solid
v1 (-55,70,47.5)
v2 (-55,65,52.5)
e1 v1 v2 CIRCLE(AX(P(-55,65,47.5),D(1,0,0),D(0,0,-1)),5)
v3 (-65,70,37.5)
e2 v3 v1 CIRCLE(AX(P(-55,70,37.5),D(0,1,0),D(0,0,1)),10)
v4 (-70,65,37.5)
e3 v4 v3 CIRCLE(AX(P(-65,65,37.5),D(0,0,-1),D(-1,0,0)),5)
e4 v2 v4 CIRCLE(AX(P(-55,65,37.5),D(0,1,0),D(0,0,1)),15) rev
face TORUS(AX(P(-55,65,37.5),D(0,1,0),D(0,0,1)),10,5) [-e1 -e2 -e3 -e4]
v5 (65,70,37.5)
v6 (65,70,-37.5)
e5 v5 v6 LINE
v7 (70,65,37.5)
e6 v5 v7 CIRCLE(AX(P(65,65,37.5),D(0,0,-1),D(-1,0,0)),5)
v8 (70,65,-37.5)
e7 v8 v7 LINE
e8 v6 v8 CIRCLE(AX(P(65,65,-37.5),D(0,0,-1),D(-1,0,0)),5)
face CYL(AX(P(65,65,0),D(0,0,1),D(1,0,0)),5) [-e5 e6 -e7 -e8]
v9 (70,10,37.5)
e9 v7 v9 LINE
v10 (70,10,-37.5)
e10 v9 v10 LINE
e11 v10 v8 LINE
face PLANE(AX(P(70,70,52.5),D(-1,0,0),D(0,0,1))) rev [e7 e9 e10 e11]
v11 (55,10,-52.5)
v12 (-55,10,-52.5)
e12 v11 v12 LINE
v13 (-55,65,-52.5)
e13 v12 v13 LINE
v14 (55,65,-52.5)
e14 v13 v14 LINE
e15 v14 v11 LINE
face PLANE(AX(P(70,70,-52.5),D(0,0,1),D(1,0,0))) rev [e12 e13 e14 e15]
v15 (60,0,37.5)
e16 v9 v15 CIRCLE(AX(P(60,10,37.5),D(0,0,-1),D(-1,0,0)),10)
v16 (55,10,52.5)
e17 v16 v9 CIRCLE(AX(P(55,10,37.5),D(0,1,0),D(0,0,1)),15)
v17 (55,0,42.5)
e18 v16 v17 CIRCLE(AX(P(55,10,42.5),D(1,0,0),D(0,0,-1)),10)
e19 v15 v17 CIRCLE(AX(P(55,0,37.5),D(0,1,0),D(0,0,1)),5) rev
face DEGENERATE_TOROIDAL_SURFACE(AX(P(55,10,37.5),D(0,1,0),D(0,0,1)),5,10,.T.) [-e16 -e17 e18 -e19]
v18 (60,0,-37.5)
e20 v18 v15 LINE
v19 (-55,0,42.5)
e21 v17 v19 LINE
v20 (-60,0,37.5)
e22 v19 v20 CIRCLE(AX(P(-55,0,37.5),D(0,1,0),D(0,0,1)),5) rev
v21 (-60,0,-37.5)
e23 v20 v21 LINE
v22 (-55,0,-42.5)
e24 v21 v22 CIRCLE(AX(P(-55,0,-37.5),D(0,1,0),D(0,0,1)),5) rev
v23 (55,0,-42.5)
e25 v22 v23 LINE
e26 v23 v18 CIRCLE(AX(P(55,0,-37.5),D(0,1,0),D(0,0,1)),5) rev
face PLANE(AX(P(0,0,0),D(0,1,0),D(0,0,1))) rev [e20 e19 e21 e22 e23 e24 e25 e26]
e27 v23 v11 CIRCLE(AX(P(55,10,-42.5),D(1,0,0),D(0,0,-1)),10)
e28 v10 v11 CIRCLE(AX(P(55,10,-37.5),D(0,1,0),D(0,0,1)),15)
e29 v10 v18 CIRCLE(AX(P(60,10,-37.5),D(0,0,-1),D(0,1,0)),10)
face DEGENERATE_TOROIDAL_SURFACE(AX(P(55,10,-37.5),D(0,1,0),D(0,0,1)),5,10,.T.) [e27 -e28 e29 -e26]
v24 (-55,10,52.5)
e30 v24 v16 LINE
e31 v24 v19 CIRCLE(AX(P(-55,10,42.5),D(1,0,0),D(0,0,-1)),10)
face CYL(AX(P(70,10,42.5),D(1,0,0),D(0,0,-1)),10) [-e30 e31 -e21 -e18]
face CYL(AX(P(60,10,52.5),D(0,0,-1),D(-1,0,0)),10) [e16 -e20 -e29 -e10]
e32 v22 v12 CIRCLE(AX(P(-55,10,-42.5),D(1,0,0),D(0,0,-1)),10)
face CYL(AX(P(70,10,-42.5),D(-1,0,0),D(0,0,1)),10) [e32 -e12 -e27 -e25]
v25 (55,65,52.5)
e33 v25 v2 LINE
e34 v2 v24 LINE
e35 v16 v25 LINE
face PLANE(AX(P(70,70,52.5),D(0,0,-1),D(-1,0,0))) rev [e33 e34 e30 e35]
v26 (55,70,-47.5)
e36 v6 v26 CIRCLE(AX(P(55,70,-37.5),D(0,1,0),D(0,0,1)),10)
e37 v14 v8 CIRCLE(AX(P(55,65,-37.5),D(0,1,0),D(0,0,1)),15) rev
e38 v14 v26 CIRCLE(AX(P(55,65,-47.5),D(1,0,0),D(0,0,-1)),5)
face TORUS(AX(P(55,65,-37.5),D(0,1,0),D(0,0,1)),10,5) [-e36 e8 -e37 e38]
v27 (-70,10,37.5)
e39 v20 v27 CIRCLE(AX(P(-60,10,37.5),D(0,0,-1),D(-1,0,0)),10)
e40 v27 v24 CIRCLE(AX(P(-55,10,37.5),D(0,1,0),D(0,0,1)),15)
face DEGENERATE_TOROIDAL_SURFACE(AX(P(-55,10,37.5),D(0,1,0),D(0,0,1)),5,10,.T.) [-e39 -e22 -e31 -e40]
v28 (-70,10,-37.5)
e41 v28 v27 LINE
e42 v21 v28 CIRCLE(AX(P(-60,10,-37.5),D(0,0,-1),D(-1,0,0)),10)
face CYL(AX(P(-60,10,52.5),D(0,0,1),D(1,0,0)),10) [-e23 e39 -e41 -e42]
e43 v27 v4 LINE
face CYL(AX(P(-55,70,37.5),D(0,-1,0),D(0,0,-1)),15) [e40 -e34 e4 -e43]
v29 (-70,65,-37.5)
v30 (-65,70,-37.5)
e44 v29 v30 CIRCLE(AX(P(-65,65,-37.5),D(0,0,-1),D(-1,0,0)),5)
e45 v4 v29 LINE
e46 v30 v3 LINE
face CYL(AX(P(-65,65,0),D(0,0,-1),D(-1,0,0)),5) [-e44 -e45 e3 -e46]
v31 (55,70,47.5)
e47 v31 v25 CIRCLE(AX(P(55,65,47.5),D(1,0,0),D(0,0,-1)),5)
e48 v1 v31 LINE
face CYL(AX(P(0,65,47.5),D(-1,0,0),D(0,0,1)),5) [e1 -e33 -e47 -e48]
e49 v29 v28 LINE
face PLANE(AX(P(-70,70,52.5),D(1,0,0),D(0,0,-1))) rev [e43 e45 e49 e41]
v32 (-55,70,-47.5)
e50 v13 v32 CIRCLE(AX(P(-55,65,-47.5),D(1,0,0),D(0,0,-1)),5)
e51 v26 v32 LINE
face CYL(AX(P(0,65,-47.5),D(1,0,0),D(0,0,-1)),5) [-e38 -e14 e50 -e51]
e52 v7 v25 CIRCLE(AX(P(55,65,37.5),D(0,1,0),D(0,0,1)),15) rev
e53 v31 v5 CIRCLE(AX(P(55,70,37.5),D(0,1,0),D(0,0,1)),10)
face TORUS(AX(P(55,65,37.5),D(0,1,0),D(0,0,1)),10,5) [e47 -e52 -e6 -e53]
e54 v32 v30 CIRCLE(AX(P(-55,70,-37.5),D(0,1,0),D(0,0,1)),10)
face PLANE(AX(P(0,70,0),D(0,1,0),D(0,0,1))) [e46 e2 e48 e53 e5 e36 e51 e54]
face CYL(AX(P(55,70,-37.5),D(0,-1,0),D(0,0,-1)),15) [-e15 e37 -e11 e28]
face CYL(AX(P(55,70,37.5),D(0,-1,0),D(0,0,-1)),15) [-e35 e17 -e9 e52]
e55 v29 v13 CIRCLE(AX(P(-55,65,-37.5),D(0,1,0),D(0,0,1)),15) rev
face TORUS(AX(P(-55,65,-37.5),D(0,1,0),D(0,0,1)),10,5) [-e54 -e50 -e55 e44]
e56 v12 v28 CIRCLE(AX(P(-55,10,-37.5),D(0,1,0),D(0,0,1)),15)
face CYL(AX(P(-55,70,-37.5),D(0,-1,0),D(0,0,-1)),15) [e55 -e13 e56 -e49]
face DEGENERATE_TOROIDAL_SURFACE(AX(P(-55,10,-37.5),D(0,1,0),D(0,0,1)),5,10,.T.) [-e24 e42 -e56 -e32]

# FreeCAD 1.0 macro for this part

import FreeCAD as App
import Part
import Sketcher

V = App.Vector
Q = App.Units.Quantity


def edges_at(feature, points):
    """Names of the edges that pass closest to the given points."""
    edges = feature.Shape.Edges
    near = lambda p: min(range(len(edges)), key=lambda i: edges[i].distToShape(Part.Vertex(*p))[0])
    return sorted({f"Edge{near(p) + 1}" for p in points})

doc = App.newDocument("Part")
body = doc.addObject("PartDesign::Body", "Body")

# Sketch on XZ plane
sketch1 = body.newObject("Sketcher::SketchObject", "Sketch")
sketch1.AttachmentSupport = (doc.getObject("XZ_Plane"), [""])
sketch1.MapMode = "FlatFace"
sketch1.addGeometry(Part.LineSegment(V(-70, -52, 0), V(-70, 52, 0)), False)
sketch1.addGeometry(Part.LineSegment(V(-70, 52, 0), V(70, 52, 0)), False)
sketch1.addGeometry(Part.LineSegment(V(70, 52, 0), V(70, -52, 0)), False)
sketch1.addGeometry(Part.LineSegment(V(70, -52, 0), V(-70, -52, 0)), False)
sketch1.addConstraint(Sketcher.Constraint("Coincident", 0, 2, 1, 1))
sketch1.addConstraint(Sketcher.Constraint("Coincident", 1, 2, 2, 1))
sketch1.addConstraint(Sketcher.Constraint("Coincident", 2, 2, 3, 1))
sketch1.addConstraint(Sketcher.Constraint("Coincident", 3, 2, 0, 1))
sketch1.addConstraint(Sketcher.Constraint("Vertical", 0))
sketch1.addConstraint(Sketcher.Constraint("Horizontal", 1))
sketch1.addConstraint(Sketcher.Constraint("Vertical", 2))
sketch1.addConstraint(Sketcher.Constraint("Horizontal", 3))
sketch1.addConstraint(Sketcher.Constraint("Symmetric", 0, 2, 2, 2, -1, 1))
sketch1.addConstraint(Sketcher.Constraint("DistanceX", 1, 1, 1, 2, Q("140 mm")))
sketch1.addConstraint(Sketcher.Constraint("DistanceY", 0, 1, 0, 2, Q("105 mm")))
pad1 = body.newObject("PartDesign::Pad", "Pad")
pad1.Profile = sketch1
pad1.Length = 70
pad1.Reversed = True
doc.recompute()

fillet = body.newObject("PartDesign::Fillet", "Fillet")
fillet.Base = (pad1, edges_at(pad1, [
    (-70, 35, -52.5),
    (70, 35, -52.5),
    (70, 35, 52.5),
    (-70, 35, 52.5),
]))
fillet.Radius = 15
doc.recompute()

fillet2 = body.newObject("PartDesign::Fillet", "Fillet001")
fillet2.Base = (fillet, edges_at(fillet, [
    (-70, 0, 0),
    (0, 0, -52.5),
    (70, 0, 0),
    (0, 0, 52.5),
    (-65.607, 0, 48.107),
    (65.607, 0, 48.107),
    (65.607, 0, -48.107),
    (-65.607, 0, -48.107),
]))
fillet2.Radius = 10
doc.recompute()

fillet3 = body.newObject("PartDesign::Fillet", "Fillet002")
fillet3.Base = (fillet2, edges_at(fillet2, [
    (-70, 70, 0),
    (0, 70, -52.5),
    (0, 70, 52.5),
    (70, 70, 0),
    (-65.607, 70, 48.107),
    (65.607, 70, 48.107),
    (65.607, 70, -48.107),
    (-65.607, 70, -48.107),
]))
fillet3.Radius = 5

doc.recompute()
